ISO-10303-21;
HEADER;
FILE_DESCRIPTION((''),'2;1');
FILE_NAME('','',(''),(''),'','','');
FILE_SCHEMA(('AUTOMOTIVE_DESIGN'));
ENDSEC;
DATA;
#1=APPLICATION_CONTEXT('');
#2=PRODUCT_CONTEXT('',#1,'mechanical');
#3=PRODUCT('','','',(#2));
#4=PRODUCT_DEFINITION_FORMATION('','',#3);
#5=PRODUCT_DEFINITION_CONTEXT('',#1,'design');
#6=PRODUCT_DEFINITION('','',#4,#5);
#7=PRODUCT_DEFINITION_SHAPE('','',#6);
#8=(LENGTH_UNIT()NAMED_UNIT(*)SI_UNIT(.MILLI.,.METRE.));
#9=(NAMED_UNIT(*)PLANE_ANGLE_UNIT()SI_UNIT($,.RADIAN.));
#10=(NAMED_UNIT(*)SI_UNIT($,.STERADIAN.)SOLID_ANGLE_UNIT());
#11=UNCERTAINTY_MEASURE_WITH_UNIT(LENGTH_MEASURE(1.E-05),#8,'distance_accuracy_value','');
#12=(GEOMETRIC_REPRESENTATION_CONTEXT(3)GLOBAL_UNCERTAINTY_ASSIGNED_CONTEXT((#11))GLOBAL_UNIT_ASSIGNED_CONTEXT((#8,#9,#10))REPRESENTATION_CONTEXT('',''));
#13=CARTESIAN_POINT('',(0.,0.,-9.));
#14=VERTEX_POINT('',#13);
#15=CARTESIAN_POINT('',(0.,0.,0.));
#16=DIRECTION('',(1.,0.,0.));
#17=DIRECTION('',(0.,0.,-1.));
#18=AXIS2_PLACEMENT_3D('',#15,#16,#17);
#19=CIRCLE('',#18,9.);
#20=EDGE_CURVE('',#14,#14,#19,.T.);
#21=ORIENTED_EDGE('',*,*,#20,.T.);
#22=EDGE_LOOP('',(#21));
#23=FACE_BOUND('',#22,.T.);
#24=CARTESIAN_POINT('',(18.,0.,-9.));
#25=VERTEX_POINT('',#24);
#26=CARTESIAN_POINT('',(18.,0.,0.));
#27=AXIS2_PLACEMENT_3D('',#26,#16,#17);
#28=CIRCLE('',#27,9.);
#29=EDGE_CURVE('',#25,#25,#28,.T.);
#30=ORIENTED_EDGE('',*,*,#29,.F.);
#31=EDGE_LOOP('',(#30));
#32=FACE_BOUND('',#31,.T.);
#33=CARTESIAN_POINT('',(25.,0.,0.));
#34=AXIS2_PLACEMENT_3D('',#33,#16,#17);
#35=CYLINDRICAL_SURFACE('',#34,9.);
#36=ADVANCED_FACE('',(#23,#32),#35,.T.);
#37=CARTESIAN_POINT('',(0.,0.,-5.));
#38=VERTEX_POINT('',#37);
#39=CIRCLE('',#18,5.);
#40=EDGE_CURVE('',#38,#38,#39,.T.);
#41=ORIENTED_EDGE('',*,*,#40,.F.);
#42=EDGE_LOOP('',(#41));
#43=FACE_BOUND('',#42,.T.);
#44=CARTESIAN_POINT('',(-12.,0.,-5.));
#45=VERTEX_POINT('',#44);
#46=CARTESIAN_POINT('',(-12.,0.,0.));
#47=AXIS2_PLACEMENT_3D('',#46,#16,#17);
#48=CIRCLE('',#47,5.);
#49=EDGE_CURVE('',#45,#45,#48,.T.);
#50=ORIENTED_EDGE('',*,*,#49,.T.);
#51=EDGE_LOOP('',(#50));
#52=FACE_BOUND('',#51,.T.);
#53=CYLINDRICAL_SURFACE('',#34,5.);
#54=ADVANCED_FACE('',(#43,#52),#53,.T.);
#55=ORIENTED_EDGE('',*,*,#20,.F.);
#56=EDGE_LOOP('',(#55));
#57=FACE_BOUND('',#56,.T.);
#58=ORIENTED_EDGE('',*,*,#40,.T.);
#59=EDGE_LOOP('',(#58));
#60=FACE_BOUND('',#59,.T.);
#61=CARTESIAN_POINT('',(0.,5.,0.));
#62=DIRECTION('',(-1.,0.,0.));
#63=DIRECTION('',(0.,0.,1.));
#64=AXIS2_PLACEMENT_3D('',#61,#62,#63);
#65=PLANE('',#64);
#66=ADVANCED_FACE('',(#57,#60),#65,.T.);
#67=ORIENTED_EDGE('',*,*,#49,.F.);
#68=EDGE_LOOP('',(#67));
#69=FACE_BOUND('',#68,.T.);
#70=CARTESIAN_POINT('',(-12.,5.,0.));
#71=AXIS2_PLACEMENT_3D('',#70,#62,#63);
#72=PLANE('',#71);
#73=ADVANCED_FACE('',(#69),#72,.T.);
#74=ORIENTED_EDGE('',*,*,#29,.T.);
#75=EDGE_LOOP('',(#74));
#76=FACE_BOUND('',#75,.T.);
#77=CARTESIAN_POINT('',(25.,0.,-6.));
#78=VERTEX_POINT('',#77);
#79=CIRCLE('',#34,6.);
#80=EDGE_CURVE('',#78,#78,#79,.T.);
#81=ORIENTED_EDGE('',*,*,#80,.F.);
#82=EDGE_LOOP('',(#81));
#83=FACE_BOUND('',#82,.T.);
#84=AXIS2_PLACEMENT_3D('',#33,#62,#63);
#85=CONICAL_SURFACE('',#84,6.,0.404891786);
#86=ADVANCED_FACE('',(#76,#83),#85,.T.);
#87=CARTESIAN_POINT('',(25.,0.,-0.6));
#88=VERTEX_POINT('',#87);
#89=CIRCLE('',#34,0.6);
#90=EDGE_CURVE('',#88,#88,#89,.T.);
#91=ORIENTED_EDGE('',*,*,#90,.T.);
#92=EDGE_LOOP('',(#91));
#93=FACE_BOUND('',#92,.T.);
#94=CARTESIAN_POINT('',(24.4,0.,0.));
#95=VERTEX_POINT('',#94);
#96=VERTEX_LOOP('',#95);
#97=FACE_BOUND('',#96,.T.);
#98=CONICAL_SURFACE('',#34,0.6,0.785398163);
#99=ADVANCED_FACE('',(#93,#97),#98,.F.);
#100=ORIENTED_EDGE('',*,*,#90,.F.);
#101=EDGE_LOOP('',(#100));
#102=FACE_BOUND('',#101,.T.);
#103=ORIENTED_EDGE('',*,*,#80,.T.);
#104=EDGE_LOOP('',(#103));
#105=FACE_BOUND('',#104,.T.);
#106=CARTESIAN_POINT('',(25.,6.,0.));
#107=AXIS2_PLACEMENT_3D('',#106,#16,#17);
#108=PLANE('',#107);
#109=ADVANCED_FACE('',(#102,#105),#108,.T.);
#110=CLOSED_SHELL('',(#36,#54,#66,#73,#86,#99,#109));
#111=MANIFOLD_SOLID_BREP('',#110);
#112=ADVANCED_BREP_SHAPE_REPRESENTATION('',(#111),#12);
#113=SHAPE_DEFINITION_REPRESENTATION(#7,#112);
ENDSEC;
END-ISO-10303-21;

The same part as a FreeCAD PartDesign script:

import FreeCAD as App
import Part
import Sketcher

V = App.Vector

doc = App.newDocument("Part")
params = doc.addObject("Spreadsheet::Sheet", "Params")
for row, (alias, value) in enumerate([
    ("sketch1_width", "12 mm"),
    ("sketch1_width2", "37 mm"),
    ("sketch1_width3", "18 mm"),
    ("sketch1_height", "4 mm"),
    ("sketch1_height2", "5 mm"),
    ("revolution_angle", "360 deg"),
    ("sketch2_width", "0.6 mm"),
    ("groove_angle", "360 deg"),
], start=1):
    params.set(f"A{row}", alias)
    params.set(f"B{row}", "=" + value)
    params.setAlias(f"B{row}", alias)

body = doc.addObject("PartDesign::Body", "Body")

# Sketch on XY plane
sketch1 = body.newObject("Sketcher::SketchObject", "Sketch")
sketch1.AttachmentSupport = (doc.getObject("XY_Plane"), [""])
sketch1.MapMode = "FlatFace"
sketch1.addGeometry([
    Part.LineSegment(V(0, 9, 0), V(0, 5, 0)),  # 0
    Part.LineSegment(V(0, 5, 0), V(-12, 5, 0)),  # 1
    Part.LineSegment(V(-12, 5, 0), V(-12, 0, 0)),  # 2
    Part.LineSegment(V(-12, 0, 0), V(25, 0, 0)),  # 3
    Part.LineSegment(V(25, 0, 0), V(25, 6, 0)),  # 4
    Part.LineSegment(V(25, 6, 0), V(18, 9, 0)),  # 5
    Part.LineSegment(V(18, 9, 0), V(0, 9, 0)),  # 6
], False)
sketch1.addConstraint([
    Sketcher.Constraint("Coincident", 0, 2, 1, 1),
    Sketcher.Constraint("Coincident", 1, 2, 2, 1),
    Sketcher.Constraint("Coincident", 2, 2, 3, 1),
    Sketcher.Constraint("Coincident", 3, 2, 4, 1),
    Sketcher.Constraint("Coincident", 4, 2, 5, 1),
    Sketcher.Constraint("Coincident", 5, 2, 6, 1),
    Sketcher.Constraint("Coincident", 6, 2, 0, 1),
    Sketcher.Constraint("Vertical", 0),
    Sketcher.Constraint("Horizontal", 1),
    Sketcher.Constraint("Vertical", 2),
    Sketcher.Constraint("Horizontal", 3),
    Sketcher.Constraint("Vertical", 4),
    Sketcher.Constraint("Horizontal", 6),
    Sketcher.Constraint("PointOnObject", 0, 2, -2),
    Sketcher.Constraint("PointOnObject", 2, 2, -1),
    Sketcher.Constraint("DistanceX", 1, 2, 1, 1, 12.0),
    Sketcher.Constraint("DistanceX", 3, 1, 3, 2, 37.0),
    Sketcher.Constraint("DistanceX", 6, 2, 6, 1, 18.0),
    Sketcher.Constraint("DistanceY", 0, 2, 0, 1, 4.0),
    Sketcher.Constraint("DistanceY", 2, 2, 2, 1, 5.0),
    Sketcher.Constraint("DistanceY", 4, 1, 4, 2, 6.0),
])
sketch1.setExpression("Constraints[15]", "Params.sketch1_width")
sketch1.setExpression("Constraints[16]", "Params.sketch1_width2")
sketch1.setExpression("Constraints[17]", "Params.sketch1_width3")
sketch1.setExpression("Constraints[18]", "Params.sketch1_height")
sketch1.setExpression("Constraints[19]", "Params.sketch1_height2")
revolution = body.newObject("PartDesign::Revolution", "Revolution")
revolution.Profile = sketch1
revolution.ReferenceAxis = (sketch1, ["H_Axis"])
revolution.setExpression("Angle", "Params.revolution_angle")

# Sketch on XZ plane
sketch2 = body.newObject("Sketcher::SketchObject", "Sketch001")
sketch2.AttachmentSupport = (doc.getObject("XZ_Plane"), [""])
sketch2.MapMode = "FlatFace"
sketch2.addGeometry([
    Part.LineSegment(V(25, 0, 0), V(25, -0.6, 0)),
    Part.LineSegment(V(25, -0.6, 0), V(24.4, 0, 0)),
    Part.LineSegment(V(24.4, 0, 0), V(25, 0, 0)),
], False)
sketch2.addConstraint([
    Sketcher.Constraint("Coincident", 0, 2, 1, 1),
    Sketcher.Constraint("Coincident", 1, 2, 2, 1),
    Sketcher.Constraint("Coincident", 2, 2, 0, 1),
    Sketcher.Constraint("Vertical", 0),
    Sketcher.Constraint("Horizontal", 2),
    Sketcher.Constraint("PointOnObject", 1, 2, -1),
    Sketcher.Constraint("Equal", 2, 0),
    Sketcher.Constraint("DistanceX", 2, 1, 2, 2, 0.6),
    Sketcher.Constraint("DistanceX", -1, 1, 0, 2, 25.0),
])
sketch2.setExpression("Constraints[7]", "Params.sketch2_width")
groove = body.newObject("PartDesign::Groove", "Groove")
groove.Profile = sketch2
groove.ReferenceAxis = (sketch2, ["H_Axis"])
groove.setExpression("Angle", "Params.groove_angle")

doc.recompute()
